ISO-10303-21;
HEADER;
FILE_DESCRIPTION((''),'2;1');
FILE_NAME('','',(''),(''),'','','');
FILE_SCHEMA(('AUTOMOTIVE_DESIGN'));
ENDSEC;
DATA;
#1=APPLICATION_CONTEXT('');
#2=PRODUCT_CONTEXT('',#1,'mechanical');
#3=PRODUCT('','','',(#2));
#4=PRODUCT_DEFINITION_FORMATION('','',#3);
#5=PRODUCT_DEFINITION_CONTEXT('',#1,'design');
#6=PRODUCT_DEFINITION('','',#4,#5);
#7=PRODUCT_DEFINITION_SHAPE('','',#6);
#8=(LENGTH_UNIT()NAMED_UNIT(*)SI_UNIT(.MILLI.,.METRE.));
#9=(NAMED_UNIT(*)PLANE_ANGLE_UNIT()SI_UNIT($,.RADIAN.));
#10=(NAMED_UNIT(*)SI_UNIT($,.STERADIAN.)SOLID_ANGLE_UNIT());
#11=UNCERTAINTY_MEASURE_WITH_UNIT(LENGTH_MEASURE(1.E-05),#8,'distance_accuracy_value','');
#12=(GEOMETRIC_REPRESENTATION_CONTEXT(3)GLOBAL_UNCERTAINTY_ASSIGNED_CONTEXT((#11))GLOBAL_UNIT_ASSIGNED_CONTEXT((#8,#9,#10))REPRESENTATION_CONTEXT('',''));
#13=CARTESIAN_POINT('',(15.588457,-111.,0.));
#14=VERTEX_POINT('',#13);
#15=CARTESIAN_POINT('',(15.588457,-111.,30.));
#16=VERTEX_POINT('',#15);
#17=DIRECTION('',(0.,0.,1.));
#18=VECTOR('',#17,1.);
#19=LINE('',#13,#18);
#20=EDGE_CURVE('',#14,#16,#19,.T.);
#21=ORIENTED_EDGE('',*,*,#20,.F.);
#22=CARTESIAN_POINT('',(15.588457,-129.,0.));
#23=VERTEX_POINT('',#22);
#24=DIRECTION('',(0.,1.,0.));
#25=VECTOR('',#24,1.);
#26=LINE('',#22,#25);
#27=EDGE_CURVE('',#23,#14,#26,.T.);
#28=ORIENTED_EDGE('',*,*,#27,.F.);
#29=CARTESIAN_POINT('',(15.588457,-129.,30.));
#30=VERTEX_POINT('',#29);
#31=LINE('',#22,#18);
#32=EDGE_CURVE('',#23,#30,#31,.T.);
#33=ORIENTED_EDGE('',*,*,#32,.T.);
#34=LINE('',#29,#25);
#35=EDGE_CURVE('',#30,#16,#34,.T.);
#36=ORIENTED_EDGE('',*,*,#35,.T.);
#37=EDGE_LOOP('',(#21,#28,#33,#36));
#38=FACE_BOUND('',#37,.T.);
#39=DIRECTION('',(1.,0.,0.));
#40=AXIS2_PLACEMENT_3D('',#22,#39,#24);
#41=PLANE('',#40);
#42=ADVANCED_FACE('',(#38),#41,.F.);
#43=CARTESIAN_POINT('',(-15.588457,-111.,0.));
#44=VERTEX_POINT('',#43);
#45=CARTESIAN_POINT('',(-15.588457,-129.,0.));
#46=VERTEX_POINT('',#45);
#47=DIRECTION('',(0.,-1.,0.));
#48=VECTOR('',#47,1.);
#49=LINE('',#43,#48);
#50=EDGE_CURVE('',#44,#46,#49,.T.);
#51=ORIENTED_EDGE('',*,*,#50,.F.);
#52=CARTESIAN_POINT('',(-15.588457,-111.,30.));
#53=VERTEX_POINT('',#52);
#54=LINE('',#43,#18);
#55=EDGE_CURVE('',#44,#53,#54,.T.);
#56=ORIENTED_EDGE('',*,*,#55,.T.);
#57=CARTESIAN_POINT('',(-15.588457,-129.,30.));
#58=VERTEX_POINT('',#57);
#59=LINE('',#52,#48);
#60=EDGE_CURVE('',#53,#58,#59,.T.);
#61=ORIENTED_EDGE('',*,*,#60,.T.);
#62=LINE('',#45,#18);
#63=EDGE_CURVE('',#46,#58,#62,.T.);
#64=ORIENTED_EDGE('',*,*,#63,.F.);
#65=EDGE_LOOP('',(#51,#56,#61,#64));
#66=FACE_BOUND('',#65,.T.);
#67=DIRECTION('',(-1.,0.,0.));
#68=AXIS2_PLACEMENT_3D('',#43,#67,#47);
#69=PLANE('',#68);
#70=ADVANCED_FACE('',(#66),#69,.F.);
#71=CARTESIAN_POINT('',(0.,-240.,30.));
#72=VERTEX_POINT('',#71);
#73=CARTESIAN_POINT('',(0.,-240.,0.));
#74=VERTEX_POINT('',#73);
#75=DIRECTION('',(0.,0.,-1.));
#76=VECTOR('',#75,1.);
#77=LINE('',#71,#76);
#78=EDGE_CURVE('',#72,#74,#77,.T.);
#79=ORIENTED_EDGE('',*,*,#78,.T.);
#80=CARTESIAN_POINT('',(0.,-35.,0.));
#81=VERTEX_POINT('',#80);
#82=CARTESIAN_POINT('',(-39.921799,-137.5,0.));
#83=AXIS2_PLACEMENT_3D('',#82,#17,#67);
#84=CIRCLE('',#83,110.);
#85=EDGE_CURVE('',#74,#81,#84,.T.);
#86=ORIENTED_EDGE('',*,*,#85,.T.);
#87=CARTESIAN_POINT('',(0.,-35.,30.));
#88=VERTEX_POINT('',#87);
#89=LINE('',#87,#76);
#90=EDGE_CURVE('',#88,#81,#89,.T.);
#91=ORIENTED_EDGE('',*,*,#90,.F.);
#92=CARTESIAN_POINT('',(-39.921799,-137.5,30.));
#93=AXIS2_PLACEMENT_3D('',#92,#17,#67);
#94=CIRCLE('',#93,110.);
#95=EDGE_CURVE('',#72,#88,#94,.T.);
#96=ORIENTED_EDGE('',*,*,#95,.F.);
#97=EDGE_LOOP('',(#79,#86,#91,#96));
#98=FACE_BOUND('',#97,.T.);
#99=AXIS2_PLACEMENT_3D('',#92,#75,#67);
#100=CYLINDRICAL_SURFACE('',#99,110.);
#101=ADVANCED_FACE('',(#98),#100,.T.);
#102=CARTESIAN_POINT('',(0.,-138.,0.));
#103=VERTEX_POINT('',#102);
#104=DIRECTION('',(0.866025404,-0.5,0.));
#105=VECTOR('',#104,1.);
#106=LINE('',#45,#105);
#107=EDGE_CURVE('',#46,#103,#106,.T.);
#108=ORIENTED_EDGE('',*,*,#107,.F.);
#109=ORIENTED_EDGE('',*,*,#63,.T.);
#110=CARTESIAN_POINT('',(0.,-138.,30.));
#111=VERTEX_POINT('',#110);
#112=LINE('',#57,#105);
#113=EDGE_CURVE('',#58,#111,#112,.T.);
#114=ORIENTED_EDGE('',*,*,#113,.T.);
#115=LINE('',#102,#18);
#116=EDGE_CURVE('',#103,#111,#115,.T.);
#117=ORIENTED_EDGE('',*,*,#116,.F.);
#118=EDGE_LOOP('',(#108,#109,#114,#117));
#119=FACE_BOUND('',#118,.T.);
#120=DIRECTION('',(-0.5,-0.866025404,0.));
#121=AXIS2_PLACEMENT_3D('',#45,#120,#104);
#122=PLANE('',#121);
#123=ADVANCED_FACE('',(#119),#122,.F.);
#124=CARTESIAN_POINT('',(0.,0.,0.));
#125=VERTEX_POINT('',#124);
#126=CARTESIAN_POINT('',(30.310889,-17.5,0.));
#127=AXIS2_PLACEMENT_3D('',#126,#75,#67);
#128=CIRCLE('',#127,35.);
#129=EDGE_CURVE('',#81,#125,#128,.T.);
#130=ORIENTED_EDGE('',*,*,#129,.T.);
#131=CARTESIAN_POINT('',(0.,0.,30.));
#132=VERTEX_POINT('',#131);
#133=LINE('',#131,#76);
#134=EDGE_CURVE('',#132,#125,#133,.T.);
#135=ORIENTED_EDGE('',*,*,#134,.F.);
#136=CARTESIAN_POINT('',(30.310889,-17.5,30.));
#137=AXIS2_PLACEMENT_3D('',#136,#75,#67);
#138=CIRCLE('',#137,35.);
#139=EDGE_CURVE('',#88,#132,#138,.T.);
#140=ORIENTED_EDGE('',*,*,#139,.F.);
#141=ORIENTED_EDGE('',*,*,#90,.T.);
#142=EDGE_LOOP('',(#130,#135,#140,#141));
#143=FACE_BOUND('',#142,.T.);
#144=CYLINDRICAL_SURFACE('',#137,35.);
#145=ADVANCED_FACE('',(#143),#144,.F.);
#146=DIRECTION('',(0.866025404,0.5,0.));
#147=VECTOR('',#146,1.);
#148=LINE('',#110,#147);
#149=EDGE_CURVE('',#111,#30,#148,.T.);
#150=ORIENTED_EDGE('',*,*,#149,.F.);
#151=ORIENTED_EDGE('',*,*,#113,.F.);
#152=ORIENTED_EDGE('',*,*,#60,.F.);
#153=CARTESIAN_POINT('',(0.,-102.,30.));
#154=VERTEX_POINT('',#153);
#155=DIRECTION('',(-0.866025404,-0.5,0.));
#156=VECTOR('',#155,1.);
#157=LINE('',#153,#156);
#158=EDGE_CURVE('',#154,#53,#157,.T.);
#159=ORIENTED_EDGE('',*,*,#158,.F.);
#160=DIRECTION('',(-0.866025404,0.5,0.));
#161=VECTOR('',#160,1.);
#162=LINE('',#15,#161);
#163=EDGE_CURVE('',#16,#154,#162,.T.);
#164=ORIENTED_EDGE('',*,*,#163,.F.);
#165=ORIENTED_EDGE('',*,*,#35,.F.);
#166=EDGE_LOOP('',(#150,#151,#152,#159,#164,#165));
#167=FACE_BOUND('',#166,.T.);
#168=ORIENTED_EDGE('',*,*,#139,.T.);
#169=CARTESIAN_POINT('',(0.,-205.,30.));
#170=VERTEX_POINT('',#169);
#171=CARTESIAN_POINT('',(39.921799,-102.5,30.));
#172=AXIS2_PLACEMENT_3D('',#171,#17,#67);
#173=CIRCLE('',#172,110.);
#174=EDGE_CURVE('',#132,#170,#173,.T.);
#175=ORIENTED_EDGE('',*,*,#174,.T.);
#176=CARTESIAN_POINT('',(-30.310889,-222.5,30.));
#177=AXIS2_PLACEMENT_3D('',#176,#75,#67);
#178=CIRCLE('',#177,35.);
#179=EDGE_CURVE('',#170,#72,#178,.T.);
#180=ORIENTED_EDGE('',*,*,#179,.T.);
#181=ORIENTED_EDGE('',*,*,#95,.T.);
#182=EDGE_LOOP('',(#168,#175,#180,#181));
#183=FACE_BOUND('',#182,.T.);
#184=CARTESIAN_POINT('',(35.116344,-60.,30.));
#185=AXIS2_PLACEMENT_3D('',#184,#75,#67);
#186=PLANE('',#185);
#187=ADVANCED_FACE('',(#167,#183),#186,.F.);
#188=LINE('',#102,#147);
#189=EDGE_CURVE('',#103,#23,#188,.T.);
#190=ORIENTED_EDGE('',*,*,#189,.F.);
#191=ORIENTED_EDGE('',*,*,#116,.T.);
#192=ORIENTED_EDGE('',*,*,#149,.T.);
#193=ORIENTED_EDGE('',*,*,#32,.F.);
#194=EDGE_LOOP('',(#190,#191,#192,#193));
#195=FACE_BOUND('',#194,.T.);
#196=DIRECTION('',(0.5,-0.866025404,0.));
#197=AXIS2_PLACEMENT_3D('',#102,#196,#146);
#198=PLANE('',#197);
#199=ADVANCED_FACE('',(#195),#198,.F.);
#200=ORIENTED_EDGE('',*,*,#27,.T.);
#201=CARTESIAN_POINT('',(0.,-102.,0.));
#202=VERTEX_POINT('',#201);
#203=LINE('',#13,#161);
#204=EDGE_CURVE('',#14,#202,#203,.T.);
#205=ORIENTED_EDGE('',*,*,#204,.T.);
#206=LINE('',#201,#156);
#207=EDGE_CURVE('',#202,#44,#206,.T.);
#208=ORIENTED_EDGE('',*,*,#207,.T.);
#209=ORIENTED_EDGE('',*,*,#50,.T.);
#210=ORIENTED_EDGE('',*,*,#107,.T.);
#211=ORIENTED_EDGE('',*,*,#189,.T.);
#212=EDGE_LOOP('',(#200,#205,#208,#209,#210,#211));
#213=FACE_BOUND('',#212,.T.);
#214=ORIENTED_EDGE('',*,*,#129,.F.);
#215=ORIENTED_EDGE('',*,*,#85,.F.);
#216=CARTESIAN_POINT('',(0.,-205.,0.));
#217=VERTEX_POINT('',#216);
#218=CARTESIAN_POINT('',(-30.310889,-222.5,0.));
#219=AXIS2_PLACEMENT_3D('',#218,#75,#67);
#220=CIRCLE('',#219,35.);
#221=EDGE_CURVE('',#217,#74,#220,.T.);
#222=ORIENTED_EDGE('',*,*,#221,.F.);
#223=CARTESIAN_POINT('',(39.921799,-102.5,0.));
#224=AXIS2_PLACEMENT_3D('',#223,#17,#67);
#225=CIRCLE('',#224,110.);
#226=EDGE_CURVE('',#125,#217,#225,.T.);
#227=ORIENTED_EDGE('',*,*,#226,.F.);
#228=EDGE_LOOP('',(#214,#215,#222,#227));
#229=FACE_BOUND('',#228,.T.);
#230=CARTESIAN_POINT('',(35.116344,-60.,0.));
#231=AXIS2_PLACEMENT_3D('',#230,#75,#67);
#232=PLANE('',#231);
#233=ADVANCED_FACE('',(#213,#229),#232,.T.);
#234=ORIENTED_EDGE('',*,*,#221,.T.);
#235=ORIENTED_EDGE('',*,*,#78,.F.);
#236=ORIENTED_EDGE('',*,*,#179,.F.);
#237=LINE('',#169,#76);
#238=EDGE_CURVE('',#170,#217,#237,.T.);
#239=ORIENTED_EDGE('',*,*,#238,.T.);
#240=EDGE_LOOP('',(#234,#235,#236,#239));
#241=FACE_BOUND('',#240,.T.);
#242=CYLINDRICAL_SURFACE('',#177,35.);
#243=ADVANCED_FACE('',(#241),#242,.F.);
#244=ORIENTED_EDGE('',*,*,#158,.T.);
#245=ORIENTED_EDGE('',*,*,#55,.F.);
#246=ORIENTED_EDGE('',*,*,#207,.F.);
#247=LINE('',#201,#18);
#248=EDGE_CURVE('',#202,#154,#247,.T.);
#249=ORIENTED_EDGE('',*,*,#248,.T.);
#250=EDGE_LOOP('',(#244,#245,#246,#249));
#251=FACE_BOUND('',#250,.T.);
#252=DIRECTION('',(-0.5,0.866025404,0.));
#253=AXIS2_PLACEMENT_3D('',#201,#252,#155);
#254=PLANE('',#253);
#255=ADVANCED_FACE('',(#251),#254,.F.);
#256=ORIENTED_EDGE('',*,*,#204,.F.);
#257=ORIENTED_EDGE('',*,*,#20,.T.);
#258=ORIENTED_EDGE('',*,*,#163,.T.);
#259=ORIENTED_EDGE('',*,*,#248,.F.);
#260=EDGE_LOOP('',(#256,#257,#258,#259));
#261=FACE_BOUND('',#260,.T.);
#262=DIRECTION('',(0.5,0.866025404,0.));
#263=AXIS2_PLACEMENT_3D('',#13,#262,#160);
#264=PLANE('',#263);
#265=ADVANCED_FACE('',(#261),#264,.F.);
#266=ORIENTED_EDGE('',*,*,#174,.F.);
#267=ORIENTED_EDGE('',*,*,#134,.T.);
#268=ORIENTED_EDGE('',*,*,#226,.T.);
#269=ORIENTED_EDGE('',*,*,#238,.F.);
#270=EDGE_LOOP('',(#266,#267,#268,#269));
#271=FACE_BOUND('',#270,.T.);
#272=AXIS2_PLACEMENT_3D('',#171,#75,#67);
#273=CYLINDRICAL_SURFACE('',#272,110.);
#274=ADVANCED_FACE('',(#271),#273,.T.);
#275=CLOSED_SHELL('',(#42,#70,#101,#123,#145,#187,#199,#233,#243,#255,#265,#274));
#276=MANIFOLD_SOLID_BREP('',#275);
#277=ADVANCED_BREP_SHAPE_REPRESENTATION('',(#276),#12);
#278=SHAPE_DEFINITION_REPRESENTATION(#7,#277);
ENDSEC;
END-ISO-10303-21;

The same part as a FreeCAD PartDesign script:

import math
import FreeCAD as App
import Part
import Sketcher
Q = App.Units.Quantity

doc = App.newDocument("Part")
body = doc.addObject("PartDesign::Body", "Body")

sketch1 = doc.addObject("Sketcher::SketchObject", "Sketch")
body.addObject(sketch1)
sketch1.AttachmentSupport = (doc.XY_Plane, [""])
sketch1.MapMode = "FlatFace"
sketch1.addGeometry(Part.ArcOfCircle(Part.Circle(App.Vector(40, -102, 0), App.Vector(0, 0, 1), 110), math.radians(111), math.radians(249)), False)
sketch1.addGeometry(Part.ArcOfCircle(Part.Circle(App.Vector(-30, -222, 0), App.Vector(0, 0, 1), 35), math.radians(-30), math.radians(30)), False)
sketch1.addGeometry(Part.ArcOfCircle(Part.Circle(App.Vector(-40, -138, 0), App.Vector(0, 0, 1), 110), math.radians(-69), math.radians(69)), False)
sketch1.addGeometry(Part.ArcOfCircle(Part.Circle(App.Vector(30, -18, 0), App.Vector(0, 0, 1), 35), math.radians(150), math.radians(210)), False)
sketch1.addConstraint(Sketcher.Constraint("Coincident", 0, 2, 1, 2))
sketch1.addConstraint(Sketcher.Constraint("Coincident", 1, 1, 2, 1))
sketch1.addConstraint(Sketcher.Constraint("Coincident", 2, 2, 3, 2))
sketch1.addConstraint(Sketcher.Constraint("Coincident", 3, 1, 0, 1))
sketch1.addConstraint(Sketcher.Constraint("Coincident", 3, 1, -1, 1))
sketch1.addConstraint(Sketcher.Constraint("Equal", 0, 2))
sketch1.addConstraint(Sketcher.Constraint("Equal", 1, 3))
sketch1.addConstraint(Sketcher.Constraint("PointOnObject", 0, 2, -2))
sketch1.addConstraint(Sketcher.Constraint("PointOnObject", 1, 1, -2))
sketch1.addConstraint(Sketcher.Constraint("PointOnObject", 2, 2, -2))
sketch1.addConstraint(Sketcher.Constraint("Radius", 0, Q("110 mm")))
sketch1.addConstraint(Sketcher.Constraint("Radius", 1, Q("35 mm")))
sketch1.addConstraint(Sketcher.Constraint("DistanceY", 0, 2, -1, 1, Q("205 mm")))
sketch1.addConstraint(Sketcher.Constraint("DistanceY", 1, 1, -1, 1, Q("240 mm")))
sketch1.addConstraint(Sketcher.Constraint("DistanceY", 2, 2, -1, 1, Q("35 mm")))
pad1 = doc.addObject("PartDesign::Pad", "Pad")
body.addObject(pad1)
pad1.Profile = sketch1
pad1.Length = 30

sketch2 = doc.addObject("Sketcher::SketchObject", "Sketch001")
body.addObject(sketch2)
sketch2.AttachmentSupport = (doc.XY_Plane, [""])
sketch2.MapMode = "FlatFace"
sketch2.AttachmentOffset = App.Placement(App.Vector(0, 0, 30), App.Rotation())
sketch2.addGeometry(Part.LineSegment(App.Vector(16, -111, 0), App.Vector(0, -102, 0)), False)
sketch2.addGeometry(Part.LineSegment(App.Vector(0, -102, 0), App.Vector(-16, -111, 0)), False)
sketch2.addGeometry(Part.LineSegment(App.Vector(-16, -111, 0), App.Vector(-16, -129, 0)), False)
sketch2.addGeometry(Part.LineSegment(App.Vector(-16, -129, 0), App.Vector(0, -138, 0)), False)
sketch2.addGeometry(Part.LineSegment(App.Vector(0, -138, 0), App.Vector(16, -129, 0)), False)
sketch2.addGeometry(Part.LineSegment(App.Vector(16, -129, 0), App.Vector(16, -111, 0)), False)
sketch2.addConstraint(Sketcher.Constraint("Coincident", 0, 2, 1, 1))
sketch2.addConstraint(Sketcher.Constraint("Coincident", 1, 2, 2, 1))
sketch2.addConstraint(Sketcher.Constraint("Coincident", 2, 2, 3, 1))
sketch2.addConstraint(Sketcher.Constraint("Coincident", 3, 2, 4, 1))
sketch2.addConstraint(Sketcher.Constraint("Coincident", 4, 2, 5, 1))
sketch2.addConstraint(Sketcher.Constraint("Coincident", 5, 2, 0, 1))
sketch2.addConstraint(Sketcher.Constraint("Vertical", 2))
sketch2.addConstraint(Sketcher.Constraint("Vertical", 5))
sketch2.addConstraint(Sketcher.Constraint("Symmetric", 2, 2, 4, 2, -2))
sketch2.addConstraint(Sketcher.Constraint("PointOnObject", 0, 2, -2))
sketch2.addConstraint(Sketcher.Constraint("PointOnObject", 3, 2, -2))
sketch2.addConstraint(Sketcher.Constraint("Parallel", 0, 3))
sketch2.addConstraint(Sketcher.Constraint("Parallel", 1, 4))
sketch2.addConstraint(Sketcher.Constraint("DistanceY", 2, 2, 2, 1, Q("18 mm")))
sketch2.addConstraint(Sketcher.Constraint("Angle", 0, Q("150 deg")))
sketch2.addConstraint(Sketcher.Constraint("Distance", 0, Q("18 mm")))
sketch2.addConstraint(Sketcher.Constraint("DistanceY", 0, 2, -1, 1, Q("102 mm")))
pocket1 = doc.addObject("PartDesign::Pocket", "Pocket")
body.addObject(pocket1)
pocket1.Profile = sketch2
pocket1.Type = "ThroughAll"

doc.recompute()
